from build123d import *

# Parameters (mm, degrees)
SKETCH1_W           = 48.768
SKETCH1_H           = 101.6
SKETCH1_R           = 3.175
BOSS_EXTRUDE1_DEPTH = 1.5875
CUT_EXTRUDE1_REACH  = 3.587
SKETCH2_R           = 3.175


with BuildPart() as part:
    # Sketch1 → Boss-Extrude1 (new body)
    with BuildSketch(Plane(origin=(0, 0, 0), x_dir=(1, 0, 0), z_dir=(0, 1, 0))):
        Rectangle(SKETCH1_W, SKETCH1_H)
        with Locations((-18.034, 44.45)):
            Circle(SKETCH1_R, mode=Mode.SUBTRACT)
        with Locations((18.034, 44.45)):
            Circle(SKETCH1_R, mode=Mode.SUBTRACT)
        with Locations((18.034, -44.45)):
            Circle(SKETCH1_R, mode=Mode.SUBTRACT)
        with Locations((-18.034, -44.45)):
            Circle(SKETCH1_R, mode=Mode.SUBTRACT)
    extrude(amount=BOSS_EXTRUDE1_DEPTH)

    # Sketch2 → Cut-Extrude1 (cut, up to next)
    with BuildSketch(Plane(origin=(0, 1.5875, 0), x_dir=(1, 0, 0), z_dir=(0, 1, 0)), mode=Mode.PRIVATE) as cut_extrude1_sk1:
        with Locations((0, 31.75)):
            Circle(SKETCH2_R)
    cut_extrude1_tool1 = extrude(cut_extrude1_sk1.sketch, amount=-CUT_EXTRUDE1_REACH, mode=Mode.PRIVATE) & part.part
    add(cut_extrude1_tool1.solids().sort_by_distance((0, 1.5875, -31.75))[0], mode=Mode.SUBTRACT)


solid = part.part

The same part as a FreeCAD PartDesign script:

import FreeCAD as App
import Part
import Sketcher
from FreeCAD import Vector
Q = App.Units.Quantity


def add_polygon(sketch, points):
    """Adds a closed chain of lines whose ends are joined by coincident constraints."""
    first, n = sketch.GeometryCount, len(points)
    for a, b in zip(points, points[1:] + points[:1]):
        sketch.addGeometry(Part.LineSegment(App.Vector(*a, 0), App.Vector(*b, 0)), False)
    for i in range(n):
        sketch.addConstraint(Sketcher.Constraint("Coincident", first + i, 2, first + (i + 1) % n, 1))

doc = App.newDocument("Part")
body = doc.addObject("PartDesign::Body", "Body")

# Sketch on XZ plane
sketch1 = body.newObject("Sketcher::SketchObject", "Sketch")
sketch1.AttachmentSupport = (doc.getObject("XZ_Plane"), [""])
sketch1.MapMode = "FlatFace"
add_polygon(sketch1, [(-24.384, -50.8), (-24.384, 50.8), (24.384, 50.8), (24.384, -50.8)])  # lines 0-3
sketch1.addGeometry(Part.Circle(Vector(-18.034, 44.45, 0), Vector(0, 0, 1), 3.175), False)  # 4
sketch1.addGeometry(Part.Circle(Vector(18.034, 44.45, 0), Vector(0, 0, 1), 3.175), False)  # 5
sketch1.addGeometry(Part.Circle(Vector(-18.034, -44.45, 0), Vector(0, 0, 1), 3.175), False)  # 6
sketch1.addGeometry(Part.Circle(Vector(18.034, -44.45, 0), Vector(0, 0, 1), 3.175), False)  # 7
sketch1.addConstraint([
    Sketcher.Constraint("Vertical", 0),
    Sketcher.Constraint("Horizontal", 1),
    Sketcher.Constraint("Vertical", 2),
    Sketcher.Constraint("Horizontal", 3),
    Sketcher.Constraint("Equal", 4, 5),
    Sketcher.Constraint("Equal", 5, 6),
    Sketcher.Constraint("Equal", 6, 7),
    Sketcher.Constraint("Symmetric", 5, 3, 6, 3, -1, 1),
    Sketcher.Constraint("Symmetric", 4, 3, 7, 3, -1, 1),
    Sketcher.Constraint("Symmetric", 0, 2, 2, 2, -1, 1),
    Sketcher.Constraint("Symmetric", 4, 3, 5, 3, -2),
    Sketcher.Constraint("Diameter", 4, Q("0.25 in")),
    Sketcher.Constraint("DistanceY", 0, 1, 0, 2, Q("4 in")),
    Sketcher.Constraint("DistanceX", 1, 1, 1, 2, Q("1.92 in")),
    Sketcher.Constraint("DistanceY", 6, 3, 4, 3, Q("3.5 in")),
    Sketcher.Constraint("DistanceX", 4, 3, -1, 1, Q("0.71 in")),
])
pad1 = body.newObject("PartDesign::Pad", "Pad")
pad1.Profile = sketch1
pad1.Length = Q("0.0625 in")
pad1.Reversed = True

# Sketch on XZ plane
sketch2 = body.newObject("Sketcher::SketchObject", "Sketch001")
sketch2.AttachmentSupport = (doc.getObject("XZ_Plane"), [""])
sketch2.MapMode = "FlatFace"
sketch2.AttachmentOffset = App.Placement(Vector(0, 0, -0.0625 * 25.4), App.Rotation())
sketch2.addGeometry(Part.Circle(Vector(0, -31.75, 0), Vector(0, 0, 1), 3.175), False)
sketch2.addConstraint([
    Sketcher.Constraint("PointOnObject", 0, 3, -2),
    Sketcher.Constraint("Diameter", 0, Q("0.25 in")),
    Sketcher.Constraint("DistanceY", 0, 3, -1, 1, Q("1.25 in")),
])
pocket1 = body.newObject("PartDesign::Pocket", "Pocket")
pocket1.Profile = sketch2
pocket1.Type = "UpToFirst"
pocket1.Reversed = True

doc.recompute()
